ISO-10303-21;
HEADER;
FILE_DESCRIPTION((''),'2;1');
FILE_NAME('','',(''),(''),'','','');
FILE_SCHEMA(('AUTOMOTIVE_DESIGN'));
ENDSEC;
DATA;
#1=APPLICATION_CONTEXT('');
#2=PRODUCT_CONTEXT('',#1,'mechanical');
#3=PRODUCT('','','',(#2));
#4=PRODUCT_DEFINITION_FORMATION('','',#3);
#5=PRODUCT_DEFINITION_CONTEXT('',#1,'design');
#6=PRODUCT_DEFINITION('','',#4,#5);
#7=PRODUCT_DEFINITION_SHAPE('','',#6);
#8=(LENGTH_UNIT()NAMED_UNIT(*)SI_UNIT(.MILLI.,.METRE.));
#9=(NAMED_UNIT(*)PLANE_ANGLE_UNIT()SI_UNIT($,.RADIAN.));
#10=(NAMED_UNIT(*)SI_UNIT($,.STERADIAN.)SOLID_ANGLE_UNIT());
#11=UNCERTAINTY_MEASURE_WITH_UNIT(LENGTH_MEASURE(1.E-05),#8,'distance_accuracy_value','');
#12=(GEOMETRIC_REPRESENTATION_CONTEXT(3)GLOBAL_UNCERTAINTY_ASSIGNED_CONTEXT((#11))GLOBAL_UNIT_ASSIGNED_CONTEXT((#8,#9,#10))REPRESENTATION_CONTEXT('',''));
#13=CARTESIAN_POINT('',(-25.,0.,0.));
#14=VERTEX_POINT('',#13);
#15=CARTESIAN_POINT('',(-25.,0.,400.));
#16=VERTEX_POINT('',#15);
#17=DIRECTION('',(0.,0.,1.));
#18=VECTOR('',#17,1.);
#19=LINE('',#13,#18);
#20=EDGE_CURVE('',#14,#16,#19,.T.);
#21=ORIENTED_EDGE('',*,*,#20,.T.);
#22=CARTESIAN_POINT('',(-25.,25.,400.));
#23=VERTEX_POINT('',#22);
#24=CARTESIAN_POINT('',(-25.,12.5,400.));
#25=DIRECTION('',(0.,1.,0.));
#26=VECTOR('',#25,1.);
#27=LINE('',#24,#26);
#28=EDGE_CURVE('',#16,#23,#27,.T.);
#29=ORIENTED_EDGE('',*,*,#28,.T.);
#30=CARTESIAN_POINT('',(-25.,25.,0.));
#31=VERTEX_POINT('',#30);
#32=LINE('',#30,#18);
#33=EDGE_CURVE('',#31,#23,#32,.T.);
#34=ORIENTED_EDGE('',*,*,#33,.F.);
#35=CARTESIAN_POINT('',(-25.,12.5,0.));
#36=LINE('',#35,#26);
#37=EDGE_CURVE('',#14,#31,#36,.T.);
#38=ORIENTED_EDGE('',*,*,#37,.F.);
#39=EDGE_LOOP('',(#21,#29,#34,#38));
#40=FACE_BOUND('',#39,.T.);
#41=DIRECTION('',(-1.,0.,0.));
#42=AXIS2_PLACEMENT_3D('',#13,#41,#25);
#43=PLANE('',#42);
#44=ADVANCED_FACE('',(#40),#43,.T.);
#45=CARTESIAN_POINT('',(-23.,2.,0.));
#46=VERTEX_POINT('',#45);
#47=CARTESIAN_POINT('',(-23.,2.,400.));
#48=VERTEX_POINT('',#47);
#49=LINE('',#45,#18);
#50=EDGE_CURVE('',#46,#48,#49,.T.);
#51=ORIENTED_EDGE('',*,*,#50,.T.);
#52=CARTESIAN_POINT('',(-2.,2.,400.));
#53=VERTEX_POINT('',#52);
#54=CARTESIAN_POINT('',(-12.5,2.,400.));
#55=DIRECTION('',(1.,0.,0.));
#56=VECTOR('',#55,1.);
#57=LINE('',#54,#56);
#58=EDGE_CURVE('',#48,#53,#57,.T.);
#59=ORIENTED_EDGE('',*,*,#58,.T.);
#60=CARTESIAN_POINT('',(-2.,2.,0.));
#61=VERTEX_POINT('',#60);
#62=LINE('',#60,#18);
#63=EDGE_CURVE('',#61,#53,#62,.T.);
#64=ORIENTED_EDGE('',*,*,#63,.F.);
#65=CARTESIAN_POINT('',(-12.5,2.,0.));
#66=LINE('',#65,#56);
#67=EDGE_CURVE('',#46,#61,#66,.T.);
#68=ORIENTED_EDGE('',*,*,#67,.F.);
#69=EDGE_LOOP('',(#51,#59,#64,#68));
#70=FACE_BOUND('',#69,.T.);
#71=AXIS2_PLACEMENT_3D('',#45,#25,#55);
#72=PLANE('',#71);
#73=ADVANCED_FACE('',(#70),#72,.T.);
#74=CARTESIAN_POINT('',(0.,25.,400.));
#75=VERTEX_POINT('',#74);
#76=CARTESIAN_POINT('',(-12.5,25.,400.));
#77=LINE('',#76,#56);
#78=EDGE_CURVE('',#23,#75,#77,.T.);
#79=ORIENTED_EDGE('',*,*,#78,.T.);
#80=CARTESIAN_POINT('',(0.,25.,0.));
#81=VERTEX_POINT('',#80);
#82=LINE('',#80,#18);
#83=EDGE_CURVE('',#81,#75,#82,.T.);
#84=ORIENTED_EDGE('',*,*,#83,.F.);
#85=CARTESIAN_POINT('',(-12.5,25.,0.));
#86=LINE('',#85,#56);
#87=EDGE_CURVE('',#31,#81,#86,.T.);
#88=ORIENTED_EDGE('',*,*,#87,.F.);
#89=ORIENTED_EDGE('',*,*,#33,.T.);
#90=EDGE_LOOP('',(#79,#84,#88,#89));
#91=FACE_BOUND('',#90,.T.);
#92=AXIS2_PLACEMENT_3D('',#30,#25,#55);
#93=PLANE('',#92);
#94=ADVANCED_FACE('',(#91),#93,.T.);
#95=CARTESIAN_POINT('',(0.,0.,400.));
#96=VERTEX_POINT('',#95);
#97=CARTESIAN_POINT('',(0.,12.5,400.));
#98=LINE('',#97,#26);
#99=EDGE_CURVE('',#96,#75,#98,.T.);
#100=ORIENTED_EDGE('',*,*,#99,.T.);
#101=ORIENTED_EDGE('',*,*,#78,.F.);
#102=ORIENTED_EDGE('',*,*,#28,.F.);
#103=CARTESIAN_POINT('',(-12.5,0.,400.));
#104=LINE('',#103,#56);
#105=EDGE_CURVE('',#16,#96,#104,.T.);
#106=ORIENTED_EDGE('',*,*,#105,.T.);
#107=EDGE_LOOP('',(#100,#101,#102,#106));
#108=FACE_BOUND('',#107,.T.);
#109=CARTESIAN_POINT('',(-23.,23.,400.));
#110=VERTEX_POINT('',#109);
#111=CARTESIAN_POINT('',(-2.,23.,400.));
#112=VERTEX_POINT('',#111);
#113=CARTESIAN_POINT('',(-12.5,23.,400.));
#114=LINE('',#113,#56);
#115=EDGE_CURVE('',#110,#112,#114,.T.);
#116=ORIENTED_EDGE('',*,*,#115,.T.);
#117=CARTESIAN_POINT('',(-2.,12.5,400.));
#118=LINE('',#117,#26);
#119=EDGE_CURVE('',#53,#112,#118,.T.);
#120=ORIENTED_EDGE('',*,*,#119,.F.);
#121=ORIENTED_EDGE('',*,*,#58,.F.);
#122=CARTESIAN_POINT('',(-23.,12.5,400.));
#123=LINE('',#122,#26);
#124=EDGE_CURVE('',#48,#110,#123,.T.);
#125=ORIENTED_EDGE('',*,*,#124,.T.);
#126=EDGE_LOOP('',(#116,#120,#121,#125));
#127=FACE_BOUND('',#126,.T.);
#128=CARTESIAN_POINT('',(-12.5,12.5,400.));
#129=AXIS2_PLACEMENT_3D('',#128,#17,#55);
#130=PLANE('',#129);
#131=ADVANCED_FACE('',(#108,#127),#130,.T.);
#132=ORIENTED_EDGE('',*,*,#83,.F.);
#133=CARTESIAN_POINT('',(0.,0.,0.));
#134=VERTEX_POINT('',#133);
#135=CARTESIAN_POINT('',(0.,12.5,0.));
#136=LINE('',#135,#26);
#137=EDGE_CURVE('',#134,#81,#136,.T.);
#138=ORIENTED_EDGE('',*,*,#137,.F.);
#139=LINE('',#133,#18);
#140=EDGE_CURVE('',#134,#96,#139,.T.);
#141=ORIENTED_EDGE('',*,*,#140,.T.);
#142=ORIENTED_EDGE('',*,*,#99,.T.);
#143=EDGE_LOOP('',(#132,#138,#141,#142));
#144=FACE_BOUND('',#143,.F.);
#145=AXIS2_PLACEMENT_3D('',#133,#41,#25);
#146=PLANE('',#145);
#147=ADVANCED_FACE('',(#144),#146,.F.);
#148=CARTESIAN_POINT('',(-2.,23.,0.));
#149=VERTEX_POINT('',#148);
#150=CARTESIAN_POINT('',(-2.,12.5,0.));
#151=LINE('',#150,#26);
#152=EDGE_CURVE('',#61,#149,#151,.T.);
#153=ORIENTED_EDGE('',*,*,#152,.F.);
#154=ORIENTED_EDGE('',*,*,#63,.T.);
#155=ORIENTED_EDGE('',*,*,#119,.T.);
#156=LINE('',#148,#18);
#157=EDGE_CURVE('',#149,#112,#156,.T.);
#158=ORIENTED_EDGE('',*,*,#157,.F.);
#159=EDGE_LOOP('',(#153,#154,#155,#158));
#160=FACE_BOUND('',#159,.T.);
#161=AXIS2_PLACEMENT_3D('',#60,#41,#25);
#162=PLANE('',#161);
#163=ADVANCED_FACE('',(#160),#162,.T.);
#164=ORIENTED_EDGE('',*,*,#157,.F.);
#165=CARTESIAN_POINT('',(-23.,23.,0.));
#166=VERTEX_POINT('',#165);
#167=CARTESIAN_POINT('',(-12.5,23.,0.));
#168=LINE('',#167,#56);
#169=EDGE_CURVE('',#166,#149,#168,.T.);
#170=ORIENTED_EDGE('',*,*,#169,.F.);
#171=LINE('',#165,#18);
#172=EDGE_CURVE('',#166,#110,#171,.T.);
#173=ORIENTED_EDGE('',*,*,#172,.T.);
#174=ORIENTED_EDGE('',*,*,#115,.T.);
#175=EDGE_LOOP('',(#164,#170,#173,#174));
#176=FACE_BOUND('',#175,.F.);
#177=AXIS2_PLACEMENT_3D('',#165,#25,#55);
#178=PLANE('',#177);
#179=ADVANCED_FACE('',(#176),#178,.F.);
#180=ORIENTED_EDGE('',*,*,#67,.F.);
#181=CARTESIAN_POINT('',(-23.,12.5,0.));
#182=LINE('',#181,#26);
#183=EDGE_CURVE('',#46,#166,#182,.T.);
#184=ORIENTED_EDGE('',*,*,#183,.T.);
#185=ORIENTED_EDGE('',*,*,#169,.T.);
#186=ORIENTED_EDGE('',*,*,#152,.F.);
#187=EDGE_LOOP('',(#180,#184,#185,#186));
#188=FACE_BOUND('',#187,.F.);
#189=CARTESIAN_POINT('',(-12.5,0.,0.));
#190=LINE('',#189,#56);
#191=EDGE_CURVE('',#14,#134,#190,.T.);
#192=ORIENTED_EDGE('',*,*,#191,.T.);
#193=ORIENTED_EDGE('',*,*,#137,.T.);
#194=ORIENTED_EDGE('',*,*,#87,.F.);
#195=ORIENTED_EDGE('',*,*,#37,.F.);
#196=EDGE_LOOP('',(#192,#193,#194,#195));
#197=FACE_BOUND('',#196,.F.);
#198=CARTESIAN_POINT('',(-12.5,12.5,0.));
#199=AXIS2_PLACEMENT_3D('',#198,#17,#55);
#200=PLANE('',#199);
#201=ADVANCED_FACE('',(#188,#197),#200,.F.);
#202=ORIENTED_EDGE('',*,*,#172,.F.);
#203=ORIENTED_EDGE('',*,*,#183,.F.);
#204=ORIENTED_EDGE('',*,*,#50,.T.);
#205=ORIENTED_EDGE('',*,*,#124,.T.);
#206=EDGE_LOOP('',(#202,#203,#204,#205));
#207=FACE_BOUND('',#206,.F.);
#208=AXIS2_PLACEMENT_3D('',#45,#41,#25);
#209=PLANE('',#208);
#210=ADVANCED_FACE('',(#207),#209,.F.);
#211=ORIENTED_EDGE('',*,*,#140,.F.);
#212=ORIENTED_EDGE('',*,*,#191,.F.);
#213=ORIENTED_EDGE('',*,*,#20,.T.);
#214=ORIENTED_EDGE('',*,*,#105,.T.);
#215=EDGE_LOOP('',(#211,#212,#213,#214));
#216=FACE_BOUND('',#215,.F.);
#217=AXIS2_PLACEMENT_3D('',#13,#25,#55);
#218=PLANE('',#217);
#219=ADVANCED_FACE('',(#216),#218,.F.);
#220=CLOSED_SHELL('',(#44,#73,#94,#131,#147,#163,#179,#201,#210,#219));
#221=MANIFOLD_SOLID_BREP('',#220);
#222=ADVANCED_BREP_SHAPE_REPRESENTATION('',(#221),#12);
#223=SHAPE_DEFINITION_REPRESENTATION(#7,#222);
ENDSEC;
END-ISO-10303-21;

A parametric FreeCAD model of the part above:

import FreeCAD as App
import Part
import Sketcher

V = App.Vector
Q = App.Units.Quantity


def add_polygon(sketch, points):
    """Adds a closed chain of lines whose ends are joined by coincident constraints."""
    first, n = sketch.GeometryCount, len(points)
    for a, b in zip(points, points[1:] + points[:1]):
        sketch.addGeometry(Part.LineSegment(App.Vector(*a, 0), App.Vector(*b, 0)), False)
    for i in range(n):
        sketch.addConstraint(Sketcher.Constraint("Coincident", first + i, 2, first + (i + 1) % n, 1))

doc = App.newDocument("Part")
params = doc.addObject("Spreadsheet::Sheet", "Params")
for row, (alias, value) in enumerate([
    ("sketch1_width", "25 mm"),
    ("sketch1_width2", "21 mm"),
    ("pad1_length", "400 mm"),
], start=1):
    params.set(f"A{row}", alias)
    params.set(f"B{row}", "=" + value)
    params.setAlias(f"B{row}", alias)

body = doc.addObject("PartDesign::Body", "Body")

# Sketch on XY plane
sketch1 = doc.addObject("Sketcher::SketchObject", "Sketch")
body.addObject(sketch1)
sketch1.AttachmentSupport = (doc.XY_Plane, [""])
sketch1.MapMode = "FlatFace"
add_polygon(sketch1, [(-25, 25), (-25, 0), (0, 0), (0, 25)])  # lines 0-3
add_polygon(sketch1, [(-2, 2), (-23, 2), (-23, 23), (-2, 23)])  # lines 4-7
sketch1.addConstraint([
    Sketcher.Constraint("Vertical", 0),
    Sketcher.Constraint("Horizontal", 1),
    Sketcher.Constraint("Vertical", 2),
    Sketcher.Constraint("Horizontal", 3),
    Sketcher.Constraint("Horizontal", 4),
    Sketcher.Constraint("Vertical", 5),
    Sketcher.Constraint("Horizontal", 6),
    Sketcher.Constraint("Vertical", 7),
    Sketcher.Constraint("Coincident", 1, 2, -1, 1),
    Sketcher.Constraint("Equal", 3, 0),
    Sketcher.Constraint("Equal", 6, 5),
    Sketcher.Constraint("DistanceX", 1, 1, 1, 2, Q("25 mm")),
    Sketcher.Constraint("DistanceX", 4, 2, 4, 1, Q("21 mm")),
    Sketcher.Constraint("DistanceX", 4, 2, -1, 1, Q("23 mm")),
    Sketcher.Constraint("DistanceY", -1, 1, 4, 2, Q("2 mm")),
])
sketch1.setExpression("Constraints[19]", "Params.sketch1_width")
sketch1.setExpression("Constraints[20]", "Params.sketch1_width2")
pad1 = doc.addObject("PartDesign::Pad", "Pad")
body.addObject(pad1)
pad1.Profile = sketch1
pad1.setExpression("Length", "Params.pad1_length")

doc.recompute()
